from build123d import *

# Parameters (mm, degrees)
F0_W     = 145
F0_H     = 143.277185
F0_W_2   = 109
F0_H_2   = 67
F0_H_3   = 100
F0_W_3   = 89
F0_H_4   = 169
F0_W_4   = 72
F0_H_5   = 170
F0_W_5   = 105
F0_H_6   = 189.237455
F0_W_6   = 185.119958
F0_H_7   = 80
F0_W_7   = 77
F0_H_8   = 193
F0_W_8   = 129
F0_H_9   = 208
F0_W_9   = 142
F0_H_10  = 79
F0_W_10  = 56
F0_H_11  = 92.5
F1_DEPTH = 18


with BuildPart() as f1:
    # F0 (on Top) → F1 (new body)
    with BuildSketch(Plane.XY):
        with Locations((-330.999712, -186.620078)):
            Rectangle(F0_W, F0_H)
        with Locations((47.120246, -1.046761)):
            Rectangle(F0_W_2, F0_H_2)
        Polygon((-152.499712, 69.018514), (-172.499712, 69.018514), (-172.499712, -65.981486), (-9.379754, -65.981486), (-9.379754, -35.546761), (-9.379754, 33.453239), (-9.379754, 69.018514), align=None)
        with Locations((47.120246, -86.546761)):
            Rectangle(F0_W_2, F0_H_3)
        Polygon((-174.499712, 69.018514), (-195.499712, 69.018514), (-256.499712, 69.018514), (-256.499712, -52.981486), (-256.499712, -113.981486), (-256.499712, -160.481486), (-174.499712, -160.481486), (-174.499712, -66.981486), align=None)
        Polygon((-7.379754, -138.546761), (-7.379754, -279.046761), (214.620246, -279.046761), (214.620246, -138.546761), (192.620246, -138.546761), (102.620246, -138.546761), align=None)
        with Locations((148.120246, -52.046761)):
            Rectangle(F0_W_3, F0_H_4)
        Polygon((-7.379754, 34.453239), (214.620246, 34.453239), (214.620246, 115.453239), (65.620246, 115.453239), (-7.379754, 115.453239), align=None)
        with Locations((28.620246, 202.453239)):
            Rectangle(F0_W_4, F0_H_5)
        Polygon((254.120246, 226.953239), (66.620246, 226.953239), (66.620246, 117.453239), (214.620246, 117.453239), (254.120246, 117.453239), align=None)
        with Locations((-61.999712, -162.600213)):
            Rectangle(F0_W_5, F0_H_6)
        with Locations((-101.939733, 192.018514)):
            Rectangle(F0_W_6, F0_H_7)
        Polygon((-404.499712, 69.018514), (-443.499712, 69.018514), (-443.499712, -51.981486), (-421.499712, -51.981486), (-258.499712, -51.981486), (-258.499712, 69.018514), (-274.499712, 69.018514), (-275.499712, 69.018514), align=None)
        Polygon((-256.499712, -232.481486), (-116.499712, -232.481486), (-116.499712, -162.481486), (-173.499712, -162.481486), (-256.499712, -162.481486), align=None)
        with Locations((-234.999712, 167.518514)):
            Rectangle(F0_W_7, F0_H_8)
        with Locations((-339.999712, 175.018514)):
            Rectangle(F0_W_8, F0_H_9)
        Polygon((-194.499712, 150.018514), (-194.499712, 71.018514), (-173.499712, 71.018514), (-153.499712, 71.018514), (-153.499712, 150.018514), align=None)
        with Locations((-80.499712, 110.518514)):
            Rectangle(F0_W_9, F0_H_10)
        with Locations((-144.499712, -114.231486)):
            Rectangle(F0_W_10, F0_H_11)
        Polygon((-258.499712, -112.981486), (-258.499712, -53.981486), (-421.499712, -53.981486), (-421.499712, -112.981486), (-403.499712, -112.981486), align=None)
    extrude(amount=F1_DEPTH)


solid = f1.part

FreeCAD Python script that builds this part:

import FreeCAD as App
import Part
import Sketcher

V = App.Vector
Q = App.Units.Quantity

doc = App.newDocument("Part")
params = doc.addObject("Spreadsheet::Sheet", "Params")
for row, (alias, value) in enumerate([
    ("sketch1_width", "145 mm"),
    ("sketch1_width2", "109 mm"),
    ("sketch1_width3", "82 mm"),
    ("sketch1_width4", "222 mm"),
    ("sketch1_width5", "89 mm"),
    ("pad1_length", "18 mm"),
], start=1):
    params.set(f"A{row}", alias)
    params.set(f"B{row}", "=" + value)
    params.setAlias(f"B{row}", alias)

body = doc.addObject("PartDesign::Body", "Body")
body.AllowCompound = True

# Sketch on XY plane
sketch1 = doc.addObject("Sketcher::SketchObject", "Sketch")
body.addObject(sketch1)
sketch1.AttachmentSupport = (doc.XY_Plane, [""])
sketch1.MapMode = "FlatFace"
sketch1.addGeometry([
    Part.LineSegment(V(-403.499712, -114.981486, 0), V(-403.499712, -258.25867, 0)),  # 0
    Part.LineSegment(V(-403.499712, -258.25867, 0), V(-258.499712, -258.25867, 0)),  # 1
    Part.LineSegment(V(-258.499712, -258.25867, 0), V(-258.499712, -114.981486, 0)),  # 2
    Part.LineSegment(V(-258.499712, -114.981486, 0), V(-403.499712, -114.981486, 0)),  # 3
    Part.LineSegment(V(-7.379754, 32.453239, 0), V(-7.379754, -34.546761, 0)),  # 4
    Part.LineSegment(V(-7.379754, -34.546761, 0), V(101.620246, -34.546761, 0)),  # 5
    Part.LineSegment(V(101.620246, -34.546761, 0), V(101.620246, 32.453239, 0)),  # 6
    Part.LineSegment(V(101.620246, 32.453239, 0), V(-7.379754, 32.453239, 0)),  # 7
    Part.LineSegment(V(-172.499712, 69.018514, 0), V(-172.499712, -65.981486, 0)),  # 8
    Part.LineSegment(V(-172.499712, -65.981486, 0), V(-9.379754, -65.981486, 0)),  # 9
    Part.LineSegment(V(-9.379754, -65.981486, 0), V(-9.379754, 69.018514, 0)),  # 10
    Part.LineSegment(V(-9.379754, 69.018514, 0), V(-172.499712, 69.018514, 0)),  # 11
    Part.LineSegment(V(-7.379754, -36.546761, 0), V(-7.379754, -136.546761, 0)),  # 12
    Part.LineSegment(V(-7.379754, -136.546761, 0), V(101.620246, -136.546761, 0)),  # 13
    Part.LineSegment(V(101.620246, -136.546761, 0), V(101.620246, -36.546761, 0)),  # 14
    Part.LineSegment(V(101.620246, -36.546761, 0), V(-7.379754, -36.546761, 0)),  # 15
    Part.LineSegment(V(-174.499712, 69.018514, 0), V(-256.499712, 69.018514, 0)),  # 16
    Part.LineSegment(V(-256.499712, 69.018514, 0), V(-256.499712, -160.481486, 0)),  # 17
    Part.LineSegment(V(-256.499712, -160.481486, 0), V(-174.499712, -160.481486, 0)),  # 18
    Part.LineSegment(V(-174.499712, -160.481486, 0), V(-174.499712, 69.018514, 0)),  # 19
    Part.LineSegment(V(-7.379754, -138.546761, 0), V(-7.379754, -279.046761, 0)),  # 20
    Part.LineSegment(V(-7.379754, -279.046761, 0), V(214.620246, -279.046761, 0)),  # 21
    Part.LineSegment(V(214.620246, -279.046761, 0), V(214.620246, -138.546761, 0)),  # 22
    Part.LineSegment(V(214.620246, -138.546761, 0), V(-7.379754, -138.546761, 0)),  # 23
    Part.LineSegment(V(103.620246, 32.453239, 0), V(103.620246, -136.546761, 0)),  # 24
    Part.LineSegment(V(103.620246, -136.546761, 0), V(192.620246, -136.546761, 0)),  # 25
    Part.LineSegment(V(192.620246, -136.546761, 0), V(192.620246, 32.453239, 0)),  # 26
    Part.LineSegment(V(192.620246, 32.453239, 0), V(103.620246, 32.453239, 0)),  # 27
    Part.LineSegment(V(-7.379754, 34.453239, 0), V(214.620246, 34.453239, 0)),  # 28
    Part.LineSegment(V(214.620246, 34.453239, 0), V(214.620246, 115.453239, 0)),  # 29
    Part.LineSegment(V(214.620246, 115.453239, 0), V(-7.379754, 115.453239, 0)),  # 30
    Part.LineSegment(V(-7.379754, 115.453239, 0), V(-7.379754, 34.453239, 0)),  # 31
    Part.LineSegment(V(-7.379754, 287.453239, 0), V(-7.379754, 117.453239, 0)),  # 32
    Part.LineSegment(V(-7.379754, 117.453239, 0), V(64.620246, 117.453239, 0)),  # 33
    Part.LineSegment(V(64.620246, 117.453239, 0), V(64.620246, 287.453239, 0)),  # 34
    Part.LineSegment(V(64.620246, 287.453239, 0), V(-7.379754, 287.453239, 0)),  # 35
    Part.LineSegment(V(254.120246, 226.953239, 0), V(66.620246, 226.953239, 0)),  # 36
    Part.LineSegment(V(66.620246, 226.953239, 0), V(66.620246, 117.453239, 0)),  # 37
    Part.LineSegment(V(66.620246, 117.453239, 0), V(254.120246, 117.453239, 0)),  # 38
    Part.LineSegment(V(254.120246, 117.453239, 0), V(254.120246, 226.953239, 0)),  # 39
    Part.LineSegment(V(-114.499712, -67.981486, 0), V(-114.499712, -257.21894, 0)),  # 40
    Part.LineSegment(V(-114.499712, -257.21894, 0), V(-9.499712, -257.21894, 0)),  # 41
    Part.LineSegment(V(-9.499712, -257.21894, 0), V(-9.499712, -67.981486, 0)),  # 42
    Part.LineSegment(V(-9.499712, -67.981486, 0), V(-114.499712, -67.981486, 0)),  # 43
    Part.LineSegment(V(-194.499712, 232.018514, 0), V(-194.499712, 152.018514, 0)),  # 44
    Part.LineSegment(V(-194.499712, 152.018514, 0), V(-9.379754, 152.018514, 0)),  # 45
    Part.LineSegment(V(-9.379754, 152.018514, 0), V(-9.379754, 232.018514, 0)),  # 46
    Part.LineSegment(V(-9.379754, 232.018514, 0), V(-194.499712, 232.018514, 0)),  # 47
    Part.LineSegment(V(-443.499712, 69.018514, 0), V(-443.499712, -51.981486, 0)),  # 48
    Part.LineSegment(V(-443.499712, -51.981486, 0), V(-258.499712, -51.981486, 0)),  # 49
    Part.LineSegment(V(-258.499712, -51.981486, 0), V(-258.499712, 69.018514, 0)),  # 50
    Part.LineSegment(V(-258.499712, 69.018514, 0), V(-443.499712, 69.018514, 0)),  # 51
    Part.LineSegment(V(-256.499712, -232.481486, 0), V(-116.499712, -232.481486, 0)),  # 52
    Part.LineSegment(V(-116.499712, -232.481486, 0), V(-116.499712, -162.481486, 0)),  # 53
    Part.LineSegment(V(-116.499712, -162.481486, 0), V(-256.499712, -162.481486, 0)),  # 54
    Part.LineSegment(V(-256.499712, -162.481486, 0), V(-256.499712, -232.481486, 0)),  # 55
    Part.LineSegment(V(-273.499712, 264.018514, 0), V(-273.499712, 71.018514, 0)),  # 56
    Part.LineSegment(V(-273.499712, 71.018514, 0), V(-196.499712, 71.018514, 0)),  # 57
    Part.LineSegment(V(-196.499712, 71.018514, 0), V(-196.499712, 264.018514, 0)),  # 58
    Part.LineSegment(V(-196.499712, 264.018514, 0), V(-273.499712, 264.018514, 0)),  # 59
    Part.LineSegment(V(-404.499712, 279.018514, 0), V(-404.499712, 71.018514, 0)),  # 60
    Part.LineSegment(V(-404.499712, 71.018514, 0), V(-275.499712, 71.018514, 0)),  # 61
    Part.LineSegment(V(-275.499712, 71.018514, 0), V(-275.499712, 279.018514, 0)),  # 62
    Part.LineSegment(V(-275.499712, 279.018514, 0), V(-404.499712, 279.018514, 0)),  # 63
    Part.LineSegment(V(-194.499712, 150.018514, 0), V(-194.499712, 71.018514, 0)),  # 64
    Part.LineSegment(V(-194.499712, 71.018514, 0), V(-153.499712, 71.018514, 0)),  # 65
    Part.LineSegment(V(-153.499712, 71.018514, 0), V(-153.499712, 150.018514, 0)),  # 66
    Part.LineSegment(V(-153.499712, 150.018514, 0), V(-194.499712, 150.018514, 0)),  # 67
    Part.LineSegment(V(-151.499712, 150.018514, 0), V(-151.499712, 71.018514, 0)),  # 68
    Part.LineSegment(V(-151.499712, 71.018514, 0), V(-9.499712, 71.018514, 0)),  # 69
    Part.LineSegment(V(-9.499712, 71.018514, 0), V(-9.499712, 150.018514, 0)),  # 70
    Part.LineSegment(V(-9.499712, 150.018514, 0), V(-151.499712, 150.018514, 0)),  # 71
    Part.LineSegment(V(-172.499712, -67.981486, 0), V(-172.499712, -160.481486, 0)),  # 72
    Part.LineSegment(V(-172.499712, -160.481486, 0), V(-116.499712, -160.481486, 0)),  # 73
    Part.LineSegment(V(-116.499712, -160.481486, 0), V(-116.499712, -67.981486, 0)),  # 74
    Part.LineSegment(V(-116.499712, -67.981486, 0), V(-172.499712, -67.981486, 0)),  # 75
    Part.LineSegment(V(-258.499712, -112.981486, 0), V(-258.499712, -53.981486, 0)),  # 76
    Part.LineSegment(V(-258.499712, -53.981486, 0), V(-421.499712, -53.981486, 0)),  # 77
    Part.LineSegment(V(-421.499712, -53.981486, 0), V(-421.499712, -112.981486, 0)),  # 78
    Part.LineSegment(V(-421.499712, -112.981486, 0), V(-258.499712, -112.981486, 0)),  # 79
], False)
sketch1.addConstraint([
    Sketcher.Constraint("Coincident", 0, 2, 1, 1),
    Sketcher.Constraint("Coincident", 1, 2, 2, 1),
    Sketcher.Constraint("Coincident", 2, 2, 3, 1),
    Sketcher.Constraint("Coincident", 3, 2, 0, 1),
    Sketcher.Constraint("Coincident", 4, 2, 5, 1),
    Sketcher.Constraint("Coincident", 5, 2, 6, 1),
    Sketcher.Constraint("Coincident", 6, 2, 7, 1),
    Sketcher.Constraint("Coincident", 7, 2, 4, 1),
    Sketcher.Constraint("Coincident", 8, 2, 9, 1),
    Sketcher.Constraint("Coincident", 9, 2, 10, 1),
    Sketcher.Constraint("Coincident", 10, 2, 11, 1),
    Sketcher.Constraint("Coincident", 11, 2, 8, 1),
    Sketcher.Constraint("Coincident", 12, 2, 13, 1),
    Sketcher.Constraint("Coincident", 13, 2, 14, 1),
    Sketcher.Constraint("Coincident", 14, 2, 15, 1),
    Sketcher.Constraint("Coincident", 15, 2, 12, 1),
    Sketcher.Constraint("Coincident", 16, 2, 17, 1),
    Sketcher.Constraint("Coincident", 17, 2, 18, 1),
    Sketcher.Constraint("Coincident", 18, 2, 19, 1),
    Sketcher.Constraint("Coincident", 19, 2, 16, 1),
    Sketcher.Constraint("Coincident", 20, 2, 21, 1),
    Sketcher.Constraint("Coincident", 21, 2, 22, 1),
    Sketcher.Constraint("Coincident", 22, 2, 23, 1),
    Sketcher.Constraint("Coincident", 23, 2, 20, 1),
    Sketcher.Constraint("Coincident", 24, 2, 25, 1),
    Sketcher.Constraint("Coincident", 25, 2, 26, 1),
    Sketcher.Constraint("Coincident", 26, 2, 27, 1),
    Sketcher.Constraint("Coincident", 27, 2, 24, 1),
    Sketcher.Constraint("Coincident", 28, 2, 29, 1),
    Sketcher.Constraint("Coincident", 29, 2, 30, 1),
    Sketcher.Constraint("Coincident", 30, 2, 31, 1),
    Sketcher.Constraint("Coincident", 31, 2, 28, 1),
    Sketcher.Constraint("Coincident", 32, 2, 33, 1),
    Sketcher.Constraint("Coincident", 33, 2, 34, 1),
    Sketcher.Constraint("Coincident", 34, 2, 35, 1),
    Sketcher.Constraint("Coincident", 35, 2, 32, 1),
    Sketcher.Constraint("Coincident", 36, 2, 37, 1),
    Sketcher.Constraint("Coincident", 37, 2, 38, 1),
    Sketcher.Constraint("Coincident", 38, 2, 39, 1),
    Sketcher.Constraint("Coincident", 39, 2, 36, 1),
    Sketcher.Constraint("Coincident", 40, 2, 41, 1),
    Sketcher.Constraint("Coincident", 41, 2, 42, 1),
    Sketcher.Constraint("Coincident", 42, 2, 43, 1),
    Sketcher.Constraint("Coincident", 43, 2, 40, 1),
    Sketcher.Constraint("Coincident", 44, 2, 45, 1),
    Sketcher.Constraint("Coincident", 45, 2, 46, 1),
    Sketcher.Constraint("Coincident", 46, 2, 47, 1),
    Sketcher.Constraint("Coincident", 47, 2, 44, 1),
    Sketcher.Constraint("Coincident", 48, 2, 49, 1),
    Sketcher.Constraint("Coincident", 49, 2, 50, 1),
    Sketcher.Constraint("Coincident", 50, 2, 51, 1),
    Sketcher.Constraint("Coincident", 51, 2, 48, 1),
    Sketcher.Constraint("Coincident", 52, 2, 53, 1),
    Sketcher.Constraint("Coincident", 53, 2, 54, 1),
    Sketcher.Constraint("Coincident", 54, 2, 55, 1),
    Sketcher.Constraint("Coincident", 55, 2, 52, 1),
    Sketcher.Constraint("Coincident", 56, 2, 57, 1),
    Sketcher.Constraint("Coincident", 57, 2, 58, 1),
    Sketcher.Constraint("Coincident", 58, 2, 59, 1),
    Sketcher.Constraint("Coincident", 59, 2, 56, 1),
    Sketcher.Constraint("Coincident", 60, 2, 61, 1),
    Sketcher.Constraint("Coincident", 61, 2, 62, 1),
    Sketcher.Constraint("Coincident", 62, 2, 63, 1),
    Sketcher.Constraint("Coincident", 63, 2, 60, 1),
    Sketcher.Constraint("Coincident", 64, 2, 65, 1),
    Sketcher.Constraint("Coincident", 65, 2, 66, 1),
    Sketcher.Constraint("Coincident", 66, 2, 67, 1),
    Sketcher.Constraint("Coincident", 67, 2, 64, 1),
    Sketcher.Constraint("Coincident", 68, 2, 69, 1),
    Sketcher.Constraint("Coincident", 69, 2, 70, 1),
    Sketcher.Constraint("Coincident", 70, 2, 71, 1),
    Sketcher.Constraint("Coincident", 71, 2, 68, 1),
    Sketcher.Constraint("Coincident", 72, 2, 73, 1),
    Sketcher.Constraint("Coincident", 73, 2, 74, 1),
    Sketcher.Constraint("Coincident", 74, 2, 75, 1),
    Sketcher.Constraint("Coincident", 75, 2, 72, 1),
    Sketcher.Constraint("Coincident", 76, 2, 77, 1),
    Sketcher.Constraint("Coincident", 77, 2, 78, 1),
    Sketcher.Constraint("Coincident", 78, 2, 79, 1),
    Sketcher.Constraint("Coincident", 79, 2, 76, 1),
    Sketcher.Constraint("Vertical", 0),
    Sketcher.Constraint("Horizontal", 1),
    Sketcher.Constraint("Vertical", 2),
    Sketcher.Constraint("Horizontal", 3),
    Sketcher.Constraint("Vertical", 4),
    Sketcher.Constraint("Horizontal", 5),
    Sketcher.Constraint("Vertical", 6),
    Sketcher.Constraint("Horizontal", 7),
    Sketcher.Constraint("Vertical", 8),
    Sketcher.Constraint("Horizontal", 9),
    Sketcher.Constraint("Vertical", 10),
    Sketcher.Constraint("Horizontal", 11),
    Sketcher.Constraint("Vertical", 12),
    Sketcher.Constraint("Horizontal", 13),
    Sketcher.Constraint("Vertical", 14),
    Sketcher.Constraint("Horizontal", 15),
    Sketcher.Constraint("Horizontal", 16),
    Sketcher.Constraint("Vertical", 17),
    Sketcher.Constraint("Horizontal", 18),
    Sketcher.Constraint("Vertical", 19),
    Sketcher.Constraint("Vertical", 20),
    Sketcher.Constraint("Horizontal", 21),
    Sketcher.Constraint("Vertical", 22),
    Sketcher.Constraint("Horizontal", 23),
    Sketcher.Constraint("Vertical", 24),
    Sketcher.Constraint("Horizontal", 25),
    Sketcher.Constraint("Vertical", 26),
    Sketcher.Constraint("Horizontal", 27),
    Sketcher.Constraint("Horizontal", 28),
    Sketcher.Constraint("Vertical", 29),
    Sketcher.Constraint("Horizontal", 30),
    Sketcher.Constraint("Vertical", 31),
    Sketcher.Constraint("Vertical", 32),
    Sketcher.Constraint("Horizontal", 33),
    Sketcher.Constraint("Vertical", 34),
    Sketcher.Constraint("Horizontal", 35),
    Sketcher.Constraint("Horizontal", 36),
    Sketcher.Constraint("Vertical", 37),
    Sketcher.Constraint("Horizontal", 38),
    Sketcher.Constraint("Vertical", 39),
    Sketcher.Constraint("Vertical", 40),
    Sketcher.Constraint("Horizontal", 41),
    Sketcher.Constraint("Vertical", 42),
    Sketcher.Constraint("Horizontal", 43),
    Sketcher.Constraint("Vertical", 44),
    Sketcher.Constraint("Horizontal", 45),
    Sketcher.Constraint("Vertical", 46),
    Sketcher.Constraint("Horizontal", 47),
    Sketcher.Constraint("Vertical", 48),
    Sketcher.Constraint("Horizontal", 49),
    Sketcher.Constraint("Vertical", 50),
    Sketcher.Constraint("Horizontal", 51),
    Sketcher.Constraint("Horizontal", 52),
    Sketcher.Constraint("Vertical", 53),
    Sketcher.Constraint("Horizontal", 54),
    Sketcher.Constraint("Vertical", 55),
    Sketcher.Constraint("Vertical", 56),
    Sketcher.Constraint("Horizontal", 57),
    Sketcher.Constraint("Vertical", 58),
    Sketcher.Constraint("Horizontal", 59),
    Sketcher.Constraint("Vertical", 60),
    Sketcher.Constraint("Horizontal", 61),
    Sketcher.Constraint("Vertical", 62),
    Sketcher.Constraint("Horizontal", 63),
    Sketcher.Constraint("Vertical", 64),
    Sketcher.Constraint("Horizontal", 65),
    Sketcher.Constraint("Vertical", 66),
    Sketcher.Constraint("Horizontal", 67),
    Sketcher.Constraint("Vertical", 68),
    Sketcher.Constraint("Horizontal", 69),
    Sketcher.Constraint("Vertical", 70),
    Sketcher.Constraint("Horizontal", 71),
    Sketcher.Constraint("Vertical", 72),
    Sketcher.Constraint("Horizontal", 73),
    Sketcher.Constraint("Vertical", 74),
    Sketcher.Constraint("Horizontal", 75),
    Sketcher.Constraint("Vertical", 76),
    Sketcher.Constraint("Horizontal", 77),
    Sketcher.Constraint("Vertical", 78),
    Sketcher.Constraint("Horizontal", 79),
    Sketcher.Constraint("Horizontal", 11, 2, 16, 2),
    Sketcher.Constraint("Horizontal", 13, 2, 24, 2),
    Sketcher.Constraint("Horizontal", 7, 2, 26, 2),
    Sketcher.Constraint("Horizontal", 33, 2, 37, 2),
    Sketcher.Constraint("Horizontal", 19, 2, 50, 2),
    Sketcher.Constraint("Horizontal", 57, 2, 60, 2),
    Sketcher.Constraint("Horizontal", 61, 2, 64, 2),
    Sketcher.Constraint("Horizontal", 65, 2, 68, 2),
    Sketcher.Constraint("Horizontal", 67, 2, 70, 2),
    Sketcher.Constraint("Horizontal", 18, 2, 72, 2),
    Sketcher.Constraint("Horizontal", 43, 2, 74, 2),
    Sketcher.Constraint("Vertical", 7, 2, 12, 2),
    Sketcher.Constraint("Vertical", 6, 2, 13, 2),
    Sketcher.Constraint("Vertical", 15, 2, 20, 2),
    Sketcher.Constraint("Vertical", 22, 2, 28, 2),
    Sketcher.Constraint("Vertical", 23, 2, 30, 2),
    Sketcher.Constraint("Vertical", 31, 2, 32, 2),
    Sketcher.Constraint("Vertical", 10, 2, 45, 2),
    Sketcher.Constraint("Vertical", 2, 2, 49, 2),
    Sketcher.Constraint("Vertical", 17, 2, 54, 2),
    Sketcher.Constraint("Vertical", 47, 2, 64, 2),
    Sketcher.Constraint("Vertical", 42, 2, 69, 2),
    Sketcher.Constraint("Vertical", 11, 2, 72, 2),
    Sketcher.Constraint("Vertical", 53, 2, 73, 2),
    Sketcher.Constraint("Vertical", 50, 2, 76, 2),
    Sketcher.Constraint("DistanceX", 1, 1, 1, 2, Q("145 mm")),
    Sketcher.Constraint("DistanceX", 5, 1, 5, 2, Q("109 mm")),
    Sketcher.Constraint("DistanceX", 16, 2, 16, 1, Q("82 mm")),
    Sketcher.Constraint("DistanceX", 21, 1, 21, 2, Q("222 mm")),
    Sketcher.Constraint("DistanceX", 25, 1, 25, 2, Q("89 mm")),
    Sketcher.Constraint("DistanceX", 33, 1, 33, 2, Q("72 mm")),
    Sketcher.Constraint("DistanceX", 41, 1, 41, 2, Q("105 mm")),
    Sketcher.Constraint("DistanceX", 49, 1, 49, 2, Q("185 mm")),
    Sketcher.Constraint("DistanceX", 52, 1, 52, 2, Q("140 mm")),
    Sketcher.Constraint("DistanceX", 57, 1, 57, 2, Q("77 mm")),
    Sketcher.Constraint("DistanceX", 61, 1, 61, 2, Q("129 mm")),
    Sketcher.Constraint("DistanceX", 65, 1, 65, 2, Q("41 mm")),
    Sketcher.Constraint("DistanceX", 69, 1, 69, 2, Q("142 mm")),
    Sketcher.Constraint("DistanceX", 73, 1, 73, 2, Q("56 mm")),
    Sketcher.Constraint("DistanceX", 77, 2, 77, 1, Q("163 mm")),
    Sketcher.Constraint("DistanceY", 4, 2, 4, 1, Q("67 mm")),
    Sketcher.Constraint("DistanceY", 8, 2, 8, 1, Q("135 mm")),
    Sketcher.Constraint("DistanceY", 12, 2, 12, 1, Q("100 mm")),
    Sketcher.Constraint("DistanceY", 24, 2, 24, 1, Q("169 mm")),
    Sketcher.Constraint("DistanceY", 29, 1, 29, 2, Q("81 mm")),
    Sketcher.Constraint("DistanceY", 32, 2, 32, 1, Q("170 mm")),
    Sketcher.Constraint("DistanceY", 44, 2, 44, 1, Q("80 mm")),
    Sketcher.Constraint("DistanceY", 48, 2, 48, 1, Q("121 mm")),
    Sketcher.Constraint("DistanceY", 53, 1, 53, 2, Q("70 mm")),
    Sketcher.Constraint("DistanceY", 56, 2, 56, 1, Q("193 mm")),
    Sketcher.Constraint("DistanceY", 60, 2, 60, 1, Q("208 mm")),
    Sketcher.Constraint("DistanceY", 64, 2, 64, 1, Q("79 mm")),
    Sketcher.Constraint("DistanceY", 76, 1, 76, 2, Q("59 mm")),
    Sketcher.Constraint("DistanceX", 36, 2, 36, 1, Q("187.5 mm")),
    Sketcher.Constraint("DistanceY", 17, 2, 17, 1, Q("229.5 mm")),
    Sketcher.Constraint("DistanceY", 20, 2, 20, 1, Q("140.5 mm")),
    Sketcher.Constraint("DistanceY", 37, 2, 37, 1, Q("109.5 mm")),
    Sketcher.Constraint("DistanceY", 72, 2, 72, 1, Q("92.5 mm")),
    Sketcher.Constraint("DistanceX", 9, 1, 9, 2, Q("163.119958 mm")),
    Sketcher.Constraint("DistanceX", 45, 1, 45, 2, Q("185.119958 mm")),
    Sketcher.Constraint("DistanceY", 0, 2, 0, 1, Q("143.277185 mm")),
    Sketcher.Constraint("DistanceY", 40, 2, 40, 1, Q("189.237455 mm")),
    Sketcher.Constraint("DistanceX", 0, 2, -1, 1, Q("403.499712 mm")),
    Sketcher.Constraint("DistanceY", 0, 2, -1, 1, Q("258.25867 mm")),
    Sketcher.Constraint("DistanceY", 4, 2, -1, 1, Q("34.546761 mm")),
    Sketcher.Constraint("DistanceX", 8, 2, -1, 1, Q("172.499712 mm")),
    Sketcher.Constraint("DistanceY", 20, 2, -1, 1, Q("279.046761 mm")),
    Sketcher.Constraint("DistanceY", -1, 1, 28, 2, Q("34.453239 mm")),
    Sketcher.Constraint("DistanceY", -1, 1, 32, 2, Q("117.453239 mm")),
    Sketcher.Constraint("DistanceY", 40, 2, -1, 1, Q("257.21894 mm")),
    Sketcher.Constraint("DistanceX", 56, 2, -1, 1, Q("273.499712 mm")),
    Sketcher.Constraint("DistanceX", 60, 2, -1, 1, Q("404.499712 mm")),
    Sketcher.Constraint("DistanceX", 68, 2, -1, 1, Q("151.499712 mm")),
    Sketcher.Constraint("DistanceX", 4, 2, -1, 1, Q("7.379754 mm")),
    Sketcher.Constraint("DistanceX", -1, 1, 24, 2, Q("103.620246 mm")),
    Sketcher.Constraint("DistanceX", -1, 1, 36, 2, Q("66.620246 mm")),
    Sketcher.Constraint("DistanceY", -1, 1, 44, 2, Q("152.018514 mm")),
    Sketcher.Constraint("DistanceY", 52, 2, -1, 1, Q("232.481486 mm")),
    Sketcher.Constraint("DistanceY", -1, 1, 56, 2, Q("71.018514 mm")),
    Sketcher.Constraint("DistanceY", 76, 2, -1, 1, Q("53.981486 mm")),
])
sketch1.setExpression("Constraints[185]", "Params.sketch1_width")
sketch1.setExpression("Constraints[186]", "Params.sketch1_width2")
sketch1.setExpression("Constraints[187]", "Params.sketch1_width3")
sketch1.setExpression("Constraints[188]", "Params.sketch1_width4")
sketch1.setExpression("Constraints[189]", "Params.sketch1_width5")
pad1 = doc.addObject("PartDesign::Pad", "Pad")
body.addObject(pad1)
pad1.Profile = sketch1
pad1.setExpression("Length", "Params.pad1_length")

doc.recompute()
